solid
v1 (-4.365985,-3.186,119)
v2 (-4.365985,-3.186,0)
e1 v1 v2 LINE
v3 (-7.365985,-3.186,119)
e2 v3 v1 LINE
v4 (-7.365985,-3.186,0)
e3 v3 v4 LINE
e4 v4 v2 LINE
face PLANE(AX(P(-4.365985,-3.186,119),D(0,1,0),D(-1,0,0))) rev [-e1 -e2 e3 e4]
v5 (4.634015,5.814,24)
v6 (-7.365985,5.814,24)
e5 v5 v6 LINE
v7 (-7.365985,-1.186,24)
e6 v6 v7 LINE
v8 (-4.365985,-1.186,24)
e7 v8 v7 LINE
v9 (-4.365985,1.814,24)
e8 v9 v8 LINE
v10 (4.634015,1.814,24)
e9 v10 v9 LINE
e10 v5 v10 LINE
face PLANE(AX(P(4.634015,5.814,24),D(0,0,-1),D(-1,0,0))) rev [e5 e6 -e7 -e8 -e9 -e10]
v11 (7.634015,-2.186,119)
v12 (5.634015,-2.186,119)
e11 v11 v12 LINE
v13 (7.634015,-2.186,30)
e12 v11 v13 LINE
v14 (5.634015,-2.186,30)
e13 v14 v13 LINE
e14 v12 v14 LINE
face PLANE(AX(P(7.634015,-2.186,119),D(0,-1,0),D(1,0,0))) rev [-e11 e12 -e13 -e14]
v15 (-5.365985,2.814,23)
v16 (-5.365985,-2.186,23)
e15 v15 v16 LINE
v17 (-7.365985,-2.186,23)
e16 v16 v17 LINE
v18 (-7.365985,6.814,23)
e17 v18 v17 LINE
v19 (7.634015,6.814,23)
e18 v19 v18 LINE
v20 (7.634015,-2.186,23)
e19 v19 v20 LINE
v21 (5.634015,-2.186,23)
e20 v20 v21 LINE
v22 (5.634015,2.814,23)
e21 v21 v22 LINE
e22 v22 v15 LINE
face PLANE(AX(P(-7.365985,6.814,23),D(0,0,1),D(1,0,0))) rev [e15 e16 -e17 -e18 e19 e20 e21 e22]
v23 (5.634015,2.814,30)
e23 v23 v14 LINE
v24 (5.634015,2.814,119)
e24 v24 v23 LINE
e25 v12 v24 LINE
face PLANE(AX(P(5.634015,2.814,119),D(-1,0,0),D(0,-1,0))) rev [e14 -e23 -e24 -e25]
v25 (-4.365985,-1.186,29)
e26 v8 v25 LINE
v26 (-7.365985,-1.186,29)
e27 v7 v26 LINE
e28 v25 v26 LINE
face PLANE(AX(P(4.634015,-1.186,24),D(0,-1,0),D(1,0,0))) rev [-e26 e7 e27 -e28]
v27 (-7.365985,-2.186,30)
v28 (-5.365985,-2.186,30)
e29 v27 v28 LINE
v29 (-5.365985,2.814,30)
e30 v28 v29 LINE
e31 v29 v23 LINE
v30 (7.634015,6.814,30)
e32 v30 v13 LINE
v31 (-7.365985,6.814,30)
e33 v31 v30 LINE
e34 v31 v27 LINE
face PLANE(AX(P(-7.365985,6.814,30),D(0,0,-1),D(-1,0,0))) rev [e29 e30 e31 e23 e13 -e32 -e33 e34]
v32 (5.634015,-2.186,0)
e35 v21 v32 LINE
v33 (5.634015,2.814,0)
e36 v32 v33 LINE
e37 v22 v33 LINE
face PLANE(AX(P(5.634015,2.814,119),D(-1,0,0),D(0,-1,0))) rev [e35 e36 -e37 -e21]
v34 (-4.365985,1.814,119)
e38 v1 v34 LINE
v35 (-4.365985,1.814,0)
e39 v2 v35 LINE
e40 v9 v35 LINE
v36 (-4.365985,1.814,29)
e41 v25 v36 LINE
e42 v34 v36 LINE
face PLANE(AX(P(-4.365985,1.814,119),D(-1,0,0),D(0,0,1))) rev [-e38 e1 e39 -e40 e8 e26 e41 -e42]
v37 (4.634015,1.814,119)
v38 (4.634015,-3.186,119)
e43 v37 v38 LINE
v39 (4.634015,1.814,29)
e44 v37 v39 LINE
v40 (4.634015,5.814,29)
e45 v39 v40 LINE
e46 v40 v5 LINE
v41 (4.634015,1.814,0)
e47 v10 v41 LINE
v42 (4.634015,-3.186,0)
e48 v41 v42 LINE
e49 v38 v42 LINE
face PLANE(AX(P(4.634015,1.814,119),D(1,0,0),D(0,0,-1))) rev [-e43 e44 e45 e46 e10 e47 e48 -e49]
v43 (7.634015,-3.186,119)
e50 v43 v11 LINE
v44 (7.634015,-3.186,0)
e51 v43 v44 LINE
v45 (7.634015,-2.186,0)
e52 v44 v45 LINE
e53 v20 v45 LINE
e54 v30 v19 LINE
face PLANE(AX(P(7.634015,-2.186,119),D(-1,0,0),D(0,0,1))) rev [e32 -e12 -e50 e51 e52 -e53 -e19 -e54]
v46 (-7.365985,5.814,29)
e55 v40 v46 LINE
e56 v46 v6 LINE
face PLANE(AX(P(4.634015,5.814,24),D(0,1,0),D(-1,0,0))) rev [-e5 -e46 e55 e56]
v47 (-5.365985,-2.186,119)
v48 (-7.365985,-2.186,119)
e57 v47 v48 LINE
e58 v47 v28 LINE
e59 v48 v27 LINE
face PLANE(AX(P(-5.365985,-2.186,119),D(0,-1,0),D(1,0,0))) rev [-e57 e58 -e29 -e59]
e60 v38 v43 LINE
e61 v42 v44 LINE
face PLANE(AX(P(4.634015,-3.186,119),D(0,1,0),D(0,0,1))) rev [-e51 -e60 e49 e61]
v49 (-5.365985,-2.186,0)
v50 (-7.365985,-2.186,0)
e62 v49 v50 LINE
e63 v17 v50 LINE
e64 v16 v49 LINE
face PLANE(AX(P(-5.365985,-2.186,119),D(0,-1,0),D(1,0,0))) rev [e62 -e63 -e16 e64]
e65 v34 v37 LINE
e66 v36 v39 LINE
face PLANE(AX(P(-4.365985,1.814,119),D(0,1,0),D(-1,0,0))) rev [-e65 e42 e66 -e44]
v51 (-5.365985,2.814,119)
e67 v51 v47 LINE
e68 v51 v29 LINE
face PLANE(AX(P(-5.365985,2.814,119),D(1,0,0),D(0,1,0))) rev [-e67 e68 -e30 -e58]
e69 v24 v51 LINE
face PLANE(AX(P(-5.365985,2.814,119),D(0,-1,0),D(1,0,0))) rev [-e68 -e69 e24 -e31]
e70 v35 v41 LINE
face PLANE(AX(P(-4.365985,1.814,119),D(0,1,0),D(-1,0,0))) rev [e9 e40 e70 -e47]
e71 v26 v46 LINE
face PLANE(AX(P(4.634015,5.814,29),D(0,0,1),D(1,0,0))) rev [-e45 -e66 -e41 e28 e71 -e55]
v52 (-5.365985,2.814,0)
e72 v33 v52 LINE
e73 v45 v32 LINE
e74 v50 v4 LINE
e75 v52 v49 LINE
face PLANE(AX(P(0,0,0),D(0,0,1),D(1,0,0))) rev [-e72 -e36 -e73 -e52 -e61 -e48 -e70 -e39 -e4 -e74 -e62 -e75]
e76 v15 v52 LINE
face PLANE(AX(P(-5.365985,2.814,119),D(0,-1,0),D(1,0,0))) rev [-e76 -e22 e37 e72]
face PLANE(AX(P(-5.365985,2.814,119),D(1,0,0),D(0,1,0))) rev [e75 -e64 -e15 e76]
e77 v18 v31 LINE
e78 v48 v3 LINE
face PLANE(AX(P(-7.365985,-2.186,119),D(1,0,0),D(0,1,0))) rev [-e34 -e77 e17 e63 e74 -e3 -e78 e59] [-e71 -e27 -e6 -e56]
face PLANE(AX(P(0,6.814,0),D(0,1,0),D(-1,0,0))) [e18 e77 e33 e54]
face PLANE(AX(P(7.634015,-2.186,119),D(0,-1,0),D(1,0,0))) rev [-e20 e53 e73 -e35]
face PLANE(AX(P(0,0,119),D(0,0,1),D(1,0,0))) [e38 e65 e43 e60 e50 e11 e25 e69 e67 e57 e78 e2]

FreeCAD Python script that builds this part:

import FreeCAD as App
import Part
import Sketcher
from FreeCAD import Vector


def add_polygon(sketch, points):
    """Adds a closed chain of lines whose ends are joined by coincident constraints."""
    first, n = sketch.GeometryCount, len(points)
    for a, b in zip(points, points[1:] + points[:1]):
        sketch.addGeometry(Part.LineSegment(App.Vector(*a, 0), App.Vector(*b, 0)), False)
    for i in range(n):
        sketch.addConstraint(Sketcher.Constraint("Coincident", first + i, 2, first + (i + 1) % n, 1))

doc = App.newDocument("Part")
params = doc.addObject("Spreadsheet::Sheet", "Params")
for row, (alias, value) in enumerate([
    ("sketch1_width", "2 mm"),
    ("sketch1_width2", "3 mm"),
    ("sketch1_width3", "9 mm"),
    ("sketch1_height", "1 mm"),
    ("sketch1_height2", "5 mm"),
    ("pad1_length", "119 mm"),
    ("sketch2_width", "15 mm"),
    ("sketch2_height", "7 mm"),
    ("pad2_length", "9 mm"),
    ("sketch3_width", "9 mm"),
    ("sketch3_height", "7 mm"),
    ("pocket1_length", "4 mm"),
    ("sketch4_width", "7 mm"),
    ("sketch4_height", "5 mm"),
    ("pocket2_length", "12 mm"),
], start=1):
    params.set(f"A{row}", alias)
    params.set(f"B{row}", "=" + value)
    params.setAlias(f"B{row}", alias)

body = doc.addObject("PartDesign::Body", "Body")

# Sketch on XY plane
sketch1 = doc.addObject("Sketcher::SketchObject", "Sketch")
body.addObject(sketch1)
sketch1.AttachmentSupport = (doc.XY_Plane, [""])
sketch1.MapMode = "FlatFace"
add_polygon(sketch1, [(-5.4, -2.2), (-7.4, -2.2), (-7.4, -3.2), (-4.4, -3.2), (-4.4, 1.8), (4.6, 1.8), (4.6, -3.2), (7.6, -3.2), (7.6, -2.2), (5.6, -2.2), (5.6, 2.8), (-5.4, 2.8)])  # lines 0-11
sketch1.addConstraint([
    Sketcher.Constraint("Horizontal", 0),
    Sketcher.Constraint("Vertical", 1),
    Sketcher.Constraint("Horizontal", 2),
    Sketcher.Constraint("Vertical", 3),
    Sketcher.Constraint("Horizontal", 4),
    Sketcher.Constraint("Vertical", 5),
    Sketcher.Constraint("Horizontal", 6),
    Sketcher.Constraint("Vertical", 7),
    Sketcher.Constraint("Horizontal", 8),
    Sketcher.Constraint("Vertical", 9),
    Sketcher.Constraint("Horizontal", 10),
    Sketcher.Constraint("Vertical", 11),
    Sketcher.Constraint("Horizontal", 2, 2, 5, 2),
    Sketcher.Constraint("Horizontal", 0, 2, 7, 2),
    Sketcher.Constraint("Equal", 2, 6),
    Sketcher.Constraint("Equal", 0, 8),
    Sketcher.Constraint("Equal", 5, 9),
    Sketcher.Constraint("DistanceX", 0, 2, 0, 1, 2.0),
    Sketcher.Constraint("DistanceX", 2, 1, 2, 2, 3.0),
    Sketcher.Constraint("DistanceX", 4, 1, 4, 2, 9.0),
    Sketcher.Constraint("DistanceY", 1, 2, 1, 1, 1.0),
    Sketcher.Constraint("DistanceY", 3, 1, 3, 2, 5.0),
    Sketcher.Constraint("DistanceY", 0, 2, -1, 1, 2.186),
    Sketcher.Constraint("DistanceX", 0, 2, -1, 1, 7.365985),
])
sketch1.setExpression("Constraints[29]", "Params.sketch1_width")
sketch1.setExpression("Constraints[30]", "Params.sketch1_width2")
sketch1.setExpression("Constraints[31]", "Params.sketch1_width3")
sketch1.setExpression("Constraints[32]", "Params.sketch1_height")
sketch1.setExpression("Constraints[33]", "Params.sketch1_height2")
pad1 = doc.addObject("PartDesign::Pad", "Pad")
body.addObject(pad1)
pad1.Profile = sketch1
pad1.setExpression("Length", "Params.pad1_length")

# Sketch on XZ plane
sketch2 = doc.addObject("Sketcher::SketchObject", "Sketch001")
body.addObject(sketch2)
sketch2.AttachmentSupport = (doc.XZ_Plane, [""])
sketch2.MapMode = "FlatFace"
sketch2.AttachmentOffset = App.Placement(Vector(0, 0, 2.186), App.Rotation())
add_polygon(sketch2, [(-7, 23), (-7, 30), (8, 30), (8, 23)])  # lines 0-3
sketch2.addConstraint([
    Sketcher.Constraint("Vertical", 0),
    Sketcher.Constraint("Horizontal", 1),
    Sketcher.Constraint("Vertical", 2),
    Sketcher.Constraint("Horizontal", 3),
    Sketcher.Constraint("DistanceX", 1, 1, 1, 2, 15.0),
    Sketcher.Constraint("DistanceY", 0, 1, 0, 2, 7.0),
    Sketcher.Constraint("DistanceY", -1, 1, 0, 2, 30.0),
    Sketcher.Constraint("DistanceX", 0, 2, -1, 1, 7.365985),
])
sketch2.setExpression("Constraints[8]", "Params.sketch2_width")
sketch2.setExpression("Constraints[9]", "Params.sketch2_height")
pad2 = doc.addObject("PartDesign::Pad", "Pad001")
body.addObject(pad2)
pad2.Profile = sketch2
pad2.setExpression("Length", "Params.pad2_length")
pad2.Reversed = True

# Sketch on XZ plane
sketch3 = doc.addObject("Sketcher::SketchObject", "Sketch002")
body.addObject(sketch3)
sketch3.AttachmentSupport = (doc.XZ_Plane, [""])
sketch3.MapMode = "FlatFace"
sketch3.AttachmentOffset = App.Placement(Vector(0, 0, 2.186), App.Rotation())
add_polygon(sketch3, [(-4, 30), (-4, 23), (5, 23), (5, 30)])  # lines 0-3
sketch3.addConstraint([
    Sketcher.Constraint("Vertical", 0),
    Sketcher.Constraint("Horizontal", 1),
    Sketcher.Constraint("Vertical", 2),
    Sketcher.Constraint("Horizontal", 3),
    Sketcher.Constraint("DistanceX", 1, 1, 1, 2, 9.0),
    Sketcher.Constraint("DistanceY", 0, 2, 0, 1, 7.0),
    Sketcher.Constraint("DistanceY", -1, 1, 0, 2, 23.0),
    Sketcher.Constraint("DistanceX", 0, 2, -1, 1, 4.365985),
])
sketch3.setExpression("Constraints[8]", "Params.sketch3_width")
sketch3.setExpression("Constraints[9]", "Params.sketch3_height")
pocket1 = doc.addObject("PartDesign::Pocket", "Pocket")
body.addObject(pocket1)
pocket1.Profile = sketch3
pocket1.setExpression("Length", "Params.pocket1_length")

# Sketch on YZ plane
sketch4 = doc.addObject("Sketcher::SketchObject", "Sketch003")
body.addObject(sketch4)
sketch4.AttachmentSupport = (doc.YZ_Plane, [""])
sketch4.MapMode = "FlatFace"
sketch4.AttachmentOffset = App.Placement(Vector(0, 0, -7.365985), App.Rotation())
add_polygon(sketch4, [(6, 24), (-1, 24), (-1, 29), (6, 29)])  # lines 0-3
sketch4.addConstraint([
    Sketcher.Constraint("Horizontal", 0),
    Sketcher.Constraint("Vertical", 1),
    Sketcher.Constraint("Horizontal", 2),
    Sketcher.Constraint("Vertical", 3),
    Sketcher.Constraint("DistanceX", 0, 2, 0, 1, 7.0),
    Sketcher.Constraint("DistanceY", 1, 1, 1, 2, 5.0),
    Sketcher.Constraint("DistanceY", -1, 1, 0, 2, 24.0),
    Sketcher.Constraint("DistanceX", 0, 2, -1, 1, 1.186),
])
sketch4.setExpression("Constraints[8]", "Params.sketch4_width")
sketch4.setExpression("Constraints[9]", "Params.sketch4_height")
pocket2 = doc.addObject("PartDesign::Pocket", "Pocket001")
body.addObject(pocket2)
pocket2.Profile = sketch4
pocket2.setExpression("Length", "Params.pocket2_length")
pocket2.Reversed = True

doc.recompute()
